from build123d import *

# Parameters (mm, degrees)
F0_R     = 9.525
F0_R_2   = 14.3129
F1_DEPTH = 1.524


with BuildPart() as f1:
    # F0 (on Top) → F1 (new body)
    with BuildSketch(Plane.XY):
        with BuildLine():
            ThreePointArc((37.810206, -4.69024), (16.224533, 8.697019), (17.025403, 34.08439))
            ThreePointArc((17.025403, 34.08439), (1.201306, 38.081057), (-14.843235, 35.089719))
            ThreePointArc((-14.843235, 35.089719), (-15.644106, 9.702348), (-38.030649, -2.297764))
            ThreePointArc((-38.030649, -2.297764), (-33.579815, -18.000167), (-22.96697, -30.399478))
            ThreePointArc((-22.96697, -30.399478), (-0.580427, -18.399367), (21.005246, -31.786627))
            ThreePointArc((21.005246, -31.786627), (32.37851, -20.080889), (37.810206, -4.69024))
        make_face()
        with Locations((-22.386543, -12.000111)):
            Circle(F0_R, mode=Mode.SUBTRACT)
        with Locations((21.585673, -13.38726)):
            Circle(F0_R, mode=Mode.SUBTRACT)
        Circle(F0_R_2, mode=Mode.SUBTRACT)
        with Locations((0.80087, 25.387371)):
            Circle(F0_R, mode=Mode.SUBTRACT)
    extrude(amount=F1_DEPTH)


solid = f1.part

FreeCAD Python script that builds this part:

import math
import FreeCAD as App
import Part
import Sketcher
Q = App.Units.Quantity

doc = App.newDocument("Part")
body = doc.addObject("PartDesign::Body", "Body")

# Sketch on XY plane
sketch1 = body.newObject("Sketcher::SketchObject", "Sketch")
sketch1.AttachmentSupport = (doc.getObject("XY_Plane"), [""])
sketch1.MapMode = "FlatFace"
sketch1.addGeometry(Part.ArcOfCircle(Part.Circle(App.Vector(39, 21, 0), App.Vector(0, 0, 1), 25), math.radians(148), math.radians(268)), False)
sketch1.addGeometry(Part.ArcOfCircle(Part.Circle(App.Vector(0, 0, 0), App.Vector(0, 0, 1), 38), math.radians(63), math.radians(113)), False)
sketch1.addGeometry(Part.ArcOfCircle(Part.Circle(App.Vector(-37, 23, 0), App.Vector(0, 0, 1), 25), math.radians(-92), math.radians(28)), False)
sketch1.addGeometry(Part.ArcOfCircle(Part.Circle(App.Vector(0, 0, 0), App.Vector(0, 0, 1), 38), math.radians(-177), math.radians(-127)), False)
sketch1.addGeometry(Part.ArcOfCircle(Part.Circle(App.Vector(-1, -44, 0), App.Vector(0, 0, 1), 25), math.radians(28), math.radians(148)), False)
sketch1.addGeometry(Part.ArcOfCircle(Part.Circle(App.Vector(0, 0, 0), App.Vector(0, 0, 1), 38), math.radians(-57), math.radians(-7)), False)
sketch1.addGeometry(Part.Circle(App.Vector(-22, -12, 0), App.Vector(0, 0, 1), 10), False)
sketch1.addGeometry(Part.Circle(App.Vector(22, -13, 0), App.Vector(0, 0, 1), 10), False)
sketch1.addGeometry(Part.Circle(App.Vector(0, 0, 0), App.Vector(0, 0, 1), 14), False)
sketch1.addGeometry(Part.Circle(App.Vector(1, 25, 0), App.Vector(0, 0, 1), 10), False)
sketch1.addConstraint(Sketcher.Constraint("Coincident", 0, 1, 1, 1))
sketch1.addConstraint(Sketcher.Constraint("Coincident", 1, 2, 2, 2))
sketch1.addConstraint(Sketcher.Constraint("Coincident", 2, 1, 3, 1))
sketch1.addConstraint(Sketcher.Constraint("Coincident", 3, 2, 4, 2))
sketch1.addConstraint(Sketcher.Constraint("Coincident", 4, 1, 5, 1))
sketch1.addConstraint(Sketcher.Constraint("Coincident", 5, 2, 0, 2))
sketch1.addConstraint(Sketcher.Constraint("Coincident", 1, 3, -1, 1))
sketch1.addConstraint(Sketcher.Constraint("Coincident", 3, 3, -1, 1))
sketch1.addConstraint(Sketcher.Constraint("Coincident", 5, 3, -1, 1))
sketch1.addConstraint(Sketcher.Constraint("Coincident", 8, 3, -1, 1))
sketch1.addConstraint(Sketcher.Constraint("Equal", 0, 2))
sketch1.addConstraint(Sketcher.Constraint("Equal", 2, 4))
sketch1.addConstraint(Sketcher.Constraint("Equal", 6, 7))
sketch1.addConstraint(Sketcher.Constraint("Equal", 7, 9))
sketch1.addConstraint(Sketcher.Constraint("Radius", 0, Q("1 in")))
sketch1.addConstraint(Sketcher.Constraint("Radius", 3, Q("1.4999999 in")))
sketch1.addConstraint(Sketcher.Constraint("Radius", 5, Q("1.5000001 in")))
sketch1.addConstraint(Sketcher.Constraint("Diameter", 6, Q("0.75 in")))
sketch1.addConstraint(Sketcher.Constraint("Diameter", 8, Q("1.127 in")))
sketch1.addConstraint(Sketcher.Constraint("Radius", 1, Q("38.099995 mm")))
sketch1.addConstraint(Sketcher.Constraint("DistanceY", -1, 1, 0, 3, Q("20.697131 mm")))
sketch1.addConstraint(Sketcher.Constraint("DistanceX", 2, 3, -1, 1, Q("37.22978 mm")))
sketch1.addConstraint(Sketcher.Constraint("DistanceY", -1, 1, 2, 3, Q("23.089608 mm")))
sketch1.addConstraint(Sketcher.Constraint("DistanceY", 6, 3, -1, 1, Q("12.000111 mm")))
sketch1.addConstraint(Sketcher.Constraint("DistanceY", 7, 3, -1, 1, Q("13.38726 mm")))
sketch1.addConstraint(Sketcher.Constraint("DistanceX", -1, 1, 9, 3, Q("0.80087 mm")))
sketch1.addConstraint(Sketcher.Constraint("DistanceY", -1, 1, 9, 3, Q("25.387371 mm")))
sketch1.addConstraint(Sketcher.Constraint("DistanceY", -1, 1, 0, 1, Q("34.08439 mm")))
sketch1.addConstraint(Sketcher.Constraint("DistanceX", 3, 2, -1, 1, Q("22.96697 mm")))
sketch1.addConstraint(Sketcher.Constraint("DistanceY", 4, 3, 0, 3, Q("64.483868 mm")))
sketch1.addConstraint(Sketcher.Constraint("DistanceX", 6, 3, 3, 3, Q("22.386542 mm")))
sketch1.addConstraint(Sketcher.Constraint("DistanceX", 4, 3, 7, 3, Q("22.96697 mm")))
pad1 = body.newObject("PartDesign::Pad", "Pad")
pad1.Profile = sketch1
pad1.Length = Q("0.06 in")

doc.recompute()
